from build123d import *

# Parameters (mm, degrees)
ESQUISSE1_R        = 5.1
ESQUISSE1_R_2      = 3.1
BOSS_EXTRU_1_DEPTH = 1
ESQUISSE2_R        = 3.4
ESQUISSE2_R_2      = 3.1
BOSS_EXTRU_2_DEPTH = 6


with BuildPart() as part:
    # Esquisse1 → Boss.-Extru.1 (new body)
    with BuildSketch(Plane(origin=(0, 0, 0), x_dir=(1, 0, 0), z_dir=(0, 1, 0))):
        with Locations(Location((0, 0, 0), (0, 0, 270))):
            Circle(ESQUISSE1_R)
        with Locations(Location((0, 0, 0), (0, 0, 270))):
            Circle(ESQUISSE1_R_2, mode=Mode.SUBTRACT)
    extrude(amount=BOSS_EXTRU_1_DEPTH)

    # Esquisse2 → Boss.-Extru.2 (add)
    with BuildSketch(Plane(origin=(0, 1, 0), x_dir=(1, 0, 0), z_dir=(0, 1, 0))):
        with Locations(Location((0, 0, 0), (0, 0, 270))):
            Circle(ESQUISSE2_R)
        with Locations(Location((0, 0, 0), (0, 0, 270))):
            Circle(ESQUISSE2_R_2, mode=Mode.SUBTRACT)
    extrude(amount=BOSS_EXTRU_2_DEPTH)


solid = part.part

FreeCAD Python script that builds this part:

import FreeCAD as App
import Part
import Sketcher
from FreeCAD import Vector
Q = App.Units.Quantity

doc = App.newDocument("Part")
body = doc.addObject("PartDesign::Body", "Body")

sketch1 = body.newObject("Sketcher::SketchObject", "Sketch")
sketch1.AttachmentSupport = (doc.getObject("XZ_Plane"), [""])
sketch1.MapMode = "FlatFace"
sketch1.addGeometry([
    Part.Circle(Vector(0, 0, 0), Vector(0, 0, 1), 5.1),
    Part.Circle(Vector(0, 0, 0), Vector(0, 0, 1), 3.1),
], False)
sketch1.addConstraint([
    Sketcher.Constraint("Coincident", 0, 3, -1, 1),
    Sketcher.Constraint("Coincident", 1, 3, -1, 1),
    Sketcher.Constraint("Diameter", 0, Q("10.2 mm")),
    Sketcher.Constraint("Diameter", 1, Q("6.2 mm")),
])
pad1 = body.newObject("PartDesign::Pad", "Pad")
pad1.Profile = sketch1
pad1.Length = 1
pad1.Reversed = True

sketch2 = body.newObject("Sketcher::SketchObject", "Sketch001")
sketch2.AttachmentSupport = (doc.getObject("XZ_Plane"), [""])
sketch2.MapMode = "FlatFace"
sketch2.AttachmentOffset = App.Placement(Vector(0, 0, -1), App.Rotation())
sketch2.addGeometry([
    Part.Circle(Vector(0, 0, 0), Vector(0, 0, 1), 3.4),
    Part.Circle(Vector(0, 0, 0), Vector(0, 0, 1), 3.1),
], False)
sketch2.addConstraint([
    Sketcher.Constraint("Coincident", 0, 3, -1, 1),
    Sketcher.Constraint("Coincident", 1, 3, -1, 1),
    Sketcher.Constraint("Diameter", 0, Q("6.8 mm")),
    Sketcher.Constraint("Diameter", 1, Q("6.2 mm")),
])
pad2 = body.newObject("PartDesign::Pad", "Pad001")
pad2.Profile = sketch2
pad2.Length = 6
pad2.Reversed = True

doc.recompute()
